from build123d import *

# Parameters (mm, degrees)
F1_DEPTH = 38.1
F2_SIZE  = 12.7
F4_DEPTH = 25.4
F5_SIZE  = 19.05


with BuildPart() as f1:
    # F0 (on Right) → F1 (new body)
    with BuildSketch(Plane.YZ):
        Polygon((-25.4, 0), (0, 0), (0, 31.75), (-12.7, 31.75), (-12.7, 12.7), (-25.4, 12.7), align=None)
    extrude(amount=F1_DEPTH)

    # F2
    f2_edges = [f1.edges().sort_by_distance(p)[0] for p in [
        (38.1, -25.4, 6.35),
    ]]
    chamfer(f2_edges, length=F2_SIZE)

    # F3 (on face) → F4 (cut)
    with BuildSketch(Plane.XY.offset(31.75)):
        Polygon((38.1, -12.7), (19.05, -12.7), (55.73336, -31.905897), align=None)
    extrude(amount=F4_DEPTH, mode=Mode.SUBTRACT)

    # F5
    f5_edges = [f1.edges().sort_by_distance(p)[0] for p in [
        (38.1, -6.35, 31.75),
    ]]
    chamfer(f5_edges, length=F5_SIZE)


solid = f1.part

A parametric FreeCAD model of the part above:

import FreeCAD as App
import Part
import Sketcher
Q = App.Units.Quantity


def edges_at(feature, points):
    """Names of the edges that pass closest to the given points."""
    edges = feature.Shape.Edges
    near = lambda p: min(range(len(edges)), key=lambda i: edges[i].distToShape(Part.Vertex(*p))[0])
    return sorted({f"Edge{near(p) + 1}" for p in points})

doc = App.newDocument("Part")
body = doc.addObject("PartDesign::Body", "Body")

sketch1 = body.newObject("Sketcher::SketchObject", "Sketch")
sketch1.AttachmentSupport = (doc.getObject("YZ_Plane"), [""])
sketch1.MapMode = "FlatFace"
sketch1.addGeometry(Part.LineSegment(App.Vector(-25, 0, 0), App.Vector(0, 0, 0)), False)
sketch1.addGeometry(Part.LineSegment(App.Vector(0, 0, 0), App.Vector(0, 32, 0)), False)
sketch1.addGeometry(Part.LineSegment(App.Vector(0, 32, 0), App.Vector(-13, 32, 0)), False)
sketch1.addGeometry(Part.LineSegment(App.Vector(-13, 32, 0), App.Vector(-13, 13, 0)), False)
sketch1.addGeometry(Part.LineSegment(App.Vector(-13, 13, 0), App.Vector(-25, 13, 0)), False)
sketch1.addGeometry(Part.LineSegment(App.Vector(-25, 13, 0), App.Vector(-25, 0, 0)), False)
sketch1.addConstraint(Sketcher.Constraint("Coincident", 0, 2, 1, 1))
sketch1.addConstraint(Sketcher.Constraint("Coincident", 1, 2, 2, 1))
sketch1.addConstraint(Sketcher.Constraint("Coincident", 2, 2, 3, 1))
sketch1.addConstraint(Sketcher.Constraint("Coincident", 3, 2, 4, 1))
sketch1.addConstraint(Sketcher.Constraint("Coincident", 4, 2, 5, 1))
sketch1.addConstraint(Sketcher.Constraint("Coincident", 5, 2, 0, 1))
sketch1.addConstraint(Sketcher.Constraint("Horizontal", 0))
sketch1.addConstraint(Sketcher.Constraint("Vertical", 1))
sketch1.addConstraint(Sketcher.Constraint("Horizontal", 2))
sketch1.addConstraint(Sketcher.Constraint("Vertical", 3))
sketch1.addConstraint(Sketcher.Constraint("Horizontal", 4))
sketch1.addConstraint(Sketcher.Constraint("Vertical", 5))
sketch1.addConstraint(Sketcher.Constraint("Coincident", 0, 2, -1, 1))
sketch1.addConstraint(Sketcher.Constraint("Equal", 2, 4))
sketch1.addConstraint(Sketcher.Constraint("Equal", 4, 5))
sketch1.addConstraint(Sketcher.Constraint("DistanceX", 0, 1, 0, 2, Q("1 in")))
sketch1.addConstraint(Sketcher.Constraint("DistanceY", 1, 1, 1, 2, Q("1.25 in")))
pad1 = body.newObject("PartDesign::Pad", "Pad")
pad1.Profile = sketch1
pad1.Length = Q("1.5 in")
doc.recompute()

chamfer = body.newObject("PartDesign::Chamfer", "Chamfer")
chamfer.Base = (pad1, edges_at(pad1, [(38.1, -25.4, 6.35)]))
chamfer.Size = Q("0.5 in")

sketch2 = body.newObject("Sketcher::SketchObject", "Sketch001")
sketch2.AttachmentSupport = (doc.getObject("XY_Plane"), [""])
sketch2.MapMode = "FlatFace"
sketch2.AttachmentOffset = App.Placement(App.Vector(0, 0, 1.25 * 25.4), App.Rotation())
sketch2.addGeometry(Part.LineSegment(App.Vector(38, -13, 0), App.Vector(19, -13, 0)), False)
sketch2.addGeometry(Part.LineSegment(App.Vector(19, -13, 0), App.Vector(56, -32, 0)), False)
sketch2.addGeometry(Part.LineSegment(App.Vector(56, -32, 0), App.Vector(38, -13, 0)), False)
sketch2.addConstraint(Sketcher.Constraint("Coincident", 0, 2, 1, 1))
sketch2.addConstraint(Sketcher.Constraint("Coincident", 1, 2, 2, 1))
sketch2.addConstraint(Sketcher.Constraint("Coincident", 2, 2, 0, 1))
sketch2.addConstraint(Sketcher.Constraint("Horizontal", 0))
sketch2.addConstraint(Sketcher.Constraint("DistanceX", 0, 2, 0, 1, Q("0.75 in")))
sketch2.addConstraint(Sketcher.Constraint("DistanceY", 0, 2, -1, 1, Q("0.5 in")))
sketch2.addConstraint(Sketcher.Constraint("DistanceX", -1, 1, 2, 2, Q("1.5 in")))
sketch2.addConstraint(Sketcher.Constraint("Distance", 1, Q("41.406948 mm")))
sketch2.addConstraint(Sketcher.Constraint("Distance", 2, Q("26.07301 mm")))
pocket1 = body.newObject("PartDesign::Pocket", "Pocket")
pocket1.Profile = sketch2
pocket1.Length = Q("1 in")
pocket1.Reversed = True
doc.recompute()

chamfer2 = body.newObject("PartDesign::Chamfer", "Chamfer001")
chamfer2.Base = (pocket1, edges_at(pocket1, [(38.1, -6.35, 31.75)]))
chamfer2.Size = Q("0.75 in")

doc.recompute()
